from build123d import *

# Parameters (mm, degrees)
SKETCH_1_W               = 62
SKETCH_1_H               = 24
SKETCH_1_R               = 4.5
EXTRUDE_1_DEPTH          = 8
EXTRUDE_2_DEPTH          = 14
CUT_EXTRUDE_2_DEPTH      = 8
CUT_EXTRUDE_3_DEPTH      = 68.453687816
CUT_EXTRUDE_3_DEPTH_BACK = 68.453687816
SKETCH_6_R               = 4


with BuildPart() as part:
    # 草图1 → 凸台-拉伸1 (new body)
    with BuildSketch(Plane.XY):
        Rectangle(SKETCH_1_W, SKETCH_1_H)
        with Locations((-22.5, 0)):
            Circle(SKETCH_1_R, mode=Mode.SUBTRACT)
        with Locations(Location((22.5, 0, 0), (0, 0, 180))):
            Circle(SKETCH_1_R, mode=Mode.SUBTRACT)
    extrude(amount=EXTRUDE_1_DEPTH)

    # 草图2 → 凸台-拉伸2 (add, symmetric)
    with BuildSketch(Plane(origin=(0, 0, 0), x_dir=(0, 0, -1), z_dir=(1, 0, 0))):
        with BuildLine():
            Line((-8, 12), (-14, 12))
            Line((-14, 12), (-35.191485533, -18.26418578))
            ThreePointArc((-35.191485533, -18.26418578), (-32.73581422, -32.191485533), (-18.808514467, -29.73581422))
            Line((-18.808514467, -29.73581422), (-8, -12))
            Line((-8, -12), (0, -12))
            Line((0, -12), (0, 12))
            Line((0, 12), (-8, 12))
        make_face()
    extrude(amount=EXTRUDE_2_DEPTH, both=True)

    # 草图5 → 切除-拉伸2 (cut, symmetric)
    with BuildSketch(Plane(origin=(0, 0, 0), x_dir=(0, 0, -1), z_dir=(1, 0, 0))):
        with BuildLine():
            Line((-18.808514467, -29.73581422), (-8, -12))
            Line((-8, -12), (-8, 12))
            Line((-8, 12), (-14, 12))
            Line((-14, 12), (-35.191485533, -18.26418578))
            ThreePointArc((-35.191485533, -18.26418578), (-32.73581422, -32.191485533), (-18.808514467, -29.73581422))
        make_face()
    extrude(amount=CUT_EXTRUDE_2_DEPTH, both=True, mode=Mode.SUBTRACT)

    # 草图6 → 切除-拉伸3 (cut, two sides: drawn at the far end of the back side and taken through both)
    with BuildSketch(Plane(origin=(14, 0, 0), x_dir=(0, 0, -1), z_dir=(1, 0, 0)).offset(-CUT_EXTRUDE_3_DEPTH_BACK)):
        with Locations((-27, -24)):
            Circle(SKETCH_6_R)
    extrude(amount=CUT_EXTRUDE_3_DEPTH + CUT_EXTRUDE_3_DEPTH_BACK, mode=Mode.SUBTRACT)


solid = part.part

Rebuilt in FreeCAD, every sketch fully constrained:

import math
import FreeCAD as App
import Part
import Sketcher
from FreeCAD import Vector


def add_polygon(sketch, points):
    """Adds a closed chain of lines whose ends are joined by coincident constraints."""
    first, n = sketch.GeometryCount, len(points)
    for a, b in zip(points, points[1:] + points[:1]):
        sketch.addGeometry(Part.LineSegment(App.Vector(*a, 0), App.Vector(*b, 0)), False)
    for i in range(n):
        sketch.addConstraint(Sketcher.Constraint("Coincident", first + i, 2, first + (i + 1) % n, 1))

doc = App.newDocument("Part")
body = doc.addObject("PartDesign::Body", "Body")

# Sketch on XY plane
sketch1 = body.newObject("Sketcher::SketchObject", "Sketch")
sketch1.AttachmentSupport = (doc.getObject("XY_Plane"), [""])
sketch1.MapMode = "FlatFace"
add_polygon(sketch1, [(-31, 12), (-31, -12), (31, -12), (31, 12)])  # lines 0-3
sketch1.addGeometry(Part.Circle(Vector(-22.5, 0, 0), Vector(0, 0, 1), 4.5), False)  # 4
sketch1.addGeometry(Part.Circle(Vector(22.5, 0, 0), Vector(0, 0, 1), 4.5), False)  # 5
sketch1.addConstraint([
    Sketcher.Constraint("Vertical", 0),
    Sketcher.Constraint("Horizontal", 1),
    Sketcher.Constraint("Vertical", 2),
    Sketcher.Constraint("Horizontal", 3),
    Sketcher.Constraint("Equal", 4, 5),
    Sketcher.Constraint("Symmetric", 4, 3, 5, 3, -1, 1),
    Sketcher.Constraint("Symmetric", 0, 2, 2, 2, -1, 1),
    Sketcher.Constraint("PointOnObject", 4, 3, -1),
    Sketcher.Constraint("Diameter", 4, 9.0),
    Sketcher.Constraint("DistanceX", 1, 1, 1, 2, 62.0),
    Sketcher.Constraint("DistanceY", 0, 2, 0, 1, 24.0),
    Sketcher.Constraint("DistanceX", 4, 3, 5, 3, 45.0),
])
pad1 = body.newObject("PartDesign::Pad", "Pad")
pad1.Profile = sketch1
pad1.Length = 8

# Sketch on YZ plane
sketch2 = body.newObject("Sketcher::SketchObject", "Sketch001")
sketch2.AttachmentSupport = (doc.getObject("YZ_Plane"), [""])
sketch2.MapMode = "FlatFace"
sketch2.addGeometry([
    Part.LineSegment(Vector(12, 14, 0), Vector(-18, 35, 0)),  # 0
    Part.ArcOfCircle(Part.Circle(Vector(-24, 27, 0), Vector(0, 0, 1), 10), math.radians(55), math.radians(235)),  # 1
    Part.LineSegment(Vector(-30, 19, 0), Vector(-12, 8, 0)),  # 2
    Part.LineSegment(Vector(-12, 8, 0), Vector(-12, 0, 0)),  # 3
    Part.LineSegment(Vector(-12, 0, 0), Vector(12, 0, 0)),  # 4
    Part.LineSegment(Vector(12, 0, 0), Vector(12, 14, 0)),  # 5
], False)
sketch2.addConstraint([
    Sketcher.Constraint("Tangent", 0, 2, 1, 1),
    Sketcher.Constraint("Coincident", 1, 2, 2, 1),
    Sketcher.Constraint("Coincident", 2, 2, 3, 1),
    Sketcher.Constraint("Coincident", 3, 2, 4, 1),
    Sketcher.Constraint("Coincident", 4, 2, 5, 1),
    Sketcher.Constraint("Coincident", 5, 2, 0, 1),
    Sketcher.Constraint("Vertical", 3),
    Sketcher.Constraint("Horizontal", 4),
    Sketcher.Constraint("Vertical", 5),
    Sketcher.Constraint("Symmetric", 3, 2, 4, 2, -1, 1),
    Sketcher.Constraint("Radius", 1, 10.0),
    Sketcher.Constraint("DistanceX", 4, 1, 4, 2, 24.0),
    Sketcher.Constraint("DistanceY", 3, 2, 3, 1, 8.0),
    Sketcher.Constraint("DistanceY", 5, 1, 5, 2, 14.0),
    Sketcher.Constraint("DistanceX", 1, 3, -1, 1, 24.0),
    Sketcher.Constraint("DistanceY", -1, 1, 1, 3, 27.0),
    Sketcher.Constraint("DistanceX", 1, 2, 0, 2, 11.471628),
])
pad2 = body.newObject("PartDesign::Pad", "Pad001")
pad2.Profile = sketch2
pad2.Length = 28
pad2.Midplane = True

# Sketch on YZ plane
sketch3 = body.newObject("Sketcher::SketchObject", "Sketch002")
sketch3.AttachmentSupport = (doc.getObject("YZ_Plane"), [""])
sketch3.MapMode = "FlatFace"
sketch3.addGeometry([
    Part.LineSegment(Vector(-30, 19, 0), Vector(-12, 8, 0)),  # 0
    Part.LineSegment(Vector(-12, 8, 0), Vector(12, 8, 0)),  # 1
    Part.LineSegment(Vector(12, 8, 0), Vector(12, 14, 0)),  # 2
    Part.LineSegment(Vector(12, 14, 0), Vector(-18, 35, 0)),  # 3
    Part.ArcOfCircle(Part.Circle(Vector(-24, 27, 0), Vector(0, 0, 1), 10), math.radians(55), math.radians(235)),  # 4
], False)
sketch3.addConstraint([
    Sketcher.Constraint("Coincident", 0, 2, 1, 1),
    Sketcher.Constraint("Coincident", 1, 2, 2, 1),
    Sketcher.Constraint("Coincident", 2, 2, 3, 1),
    Sketcher.Constraint("Tangent", 3, 2, 4, 1),
    Sketcher.Constraint("Coincident", 4, 2, 0, 1),
    Sketcher.Constraint("Horizontal", 1),
    Sketcher.Constraint("Vertical", 2),
    Sketcher.Constraint("Radius", 4, 10.0),
    Sketcher.Constraint("DistanceX", 1, 1, 1, 2, 24.0),
    Sketcher.Constraint("DistanceY", 2, 1, 2, 2, 6.0),
    Sketcher.Constraint("DistanceX", 4, 3, -1, 1, 24.0),
    Sketcher.Constraint("DistanceY", -1, 1, 4, 3, 27.0),
    Sketcher.Constraint("DistanceX", 0, 2, -1, 1, 12.0),
    Sketcher.Constraint("DistanceY", -1, 1, 0, 2, 8.0),
    Sketcher.Constraint("DistanceX", 4, 2, 3, 2, 11.471628),
])
pocket1 = body.newObject("PartDesign::Pocket", "Pocket")
pocket1.Profile = sketch3
pocket1.Length = 16
pocket1.Midplane = True

# Sketch on YZ plane
sketch4 = body.newObject("Sketcher::SketchObject", "Sketch003")
sketch4.AttachmentSupport = (doc.getObject("YZ_Plane"), [""])
sketch4.MapMode = "FlatFace"
sketch4.AttachmentOffset = App.Placement(Vector(0, 0, 14), App.Rotation())
sketch4.addGeometry(Part.Circle(Vector(-24, 27, 0), Vector(0, 0, 1), 4), False)
sketch4.addConstraint([
    Sketcher.Constraint("Diameter", 0, 8.0),
    Sketcher.Constraint("DistanceX", 0, 3, -1, 1, 24.0),
    Sketcher.Constraint("DistanceY", -1, 1, 0, 3, 27.0),
])
pocket2 = body.newObject("PartDesign::Pocket", "Pocket001")
pocket2.Profile = sketch4
pocket2.Type = "ThroughAll"
pocket2.Midplane = True

doc.recompute()
